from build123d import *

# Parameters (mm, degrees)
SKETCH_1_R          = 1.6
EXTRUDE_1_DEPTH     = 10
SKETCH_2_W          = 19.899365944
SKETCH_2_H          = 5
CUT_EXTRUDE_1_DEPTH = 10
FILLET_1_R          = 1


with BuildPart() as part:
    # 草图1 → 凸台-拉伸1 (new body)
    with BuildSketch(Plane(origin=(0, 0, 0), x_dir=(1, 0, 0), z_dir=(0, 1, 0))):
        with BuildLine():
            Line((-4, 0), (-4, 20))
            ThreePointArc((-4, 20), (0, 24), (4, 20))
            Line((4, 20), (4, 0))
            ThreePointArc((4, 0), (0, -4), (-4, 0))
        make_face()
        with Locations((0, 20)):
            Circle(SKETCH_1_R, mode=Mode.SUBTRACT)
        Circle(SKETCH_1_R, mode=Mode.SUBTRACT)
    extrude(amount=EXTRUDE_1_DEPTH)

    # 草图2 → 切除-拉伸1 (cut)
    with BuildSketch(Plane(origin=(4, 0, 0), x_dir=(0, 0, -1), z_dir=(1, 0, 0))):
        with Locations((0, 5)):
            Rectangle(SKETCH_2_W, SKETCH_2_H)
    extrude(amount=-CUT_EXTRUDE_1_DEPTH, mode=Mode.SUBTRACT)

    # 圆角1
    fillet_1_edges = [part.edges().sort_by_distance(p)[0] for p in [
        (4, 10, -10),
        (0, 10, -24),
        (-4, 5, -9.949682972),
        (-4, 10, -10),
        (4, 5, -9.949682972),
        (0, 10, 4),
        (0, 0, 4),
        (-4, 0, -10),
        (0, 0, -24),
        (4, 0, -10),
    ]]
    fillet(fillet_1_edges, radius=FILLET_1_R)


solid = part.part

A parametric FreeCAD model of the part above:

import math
import FreeCAD as App
import Part
import Sketcher


def edges_at(feature, points):
    """Names of the edges that pass closest to the given points."""
    edges = feature.Shape.Edges
    near = lambda p: min(range(len(edges)), key=lambda i: edges[i].distToShape(Part.Vertex(*p))[0])
    return sorted({f"Edge{near(p) + 1}" for p in points})


def add_polygon(sketch, points):
    """Adds a closed chain of lines whose ends are joined by coincident constraints."""
    first, n = sketch.GeometryCount, len(points)
    for a, b in zip(points, points[1:] + points[:1]):
        sketch.addGeometry(Part.LineSegment(App.Vector(*a, 0), App.Vector(*b, 0)), False)
    for i in range(n):
        sketch.addConstraint(Sketcher.Constraint("Coincident", first + i, 2, first + (i + 1) % n, 1))

doc = App.newDocument("Part")
params = doc.addObject("Spreadsheet::Sheet", "Params")
for row, (alias, value) in enumerate([
    ("sketch1_radius", "4 mm"),
    ("sketch1_diameter", "3.2 mm"),
    ("sketch1_height", "20 mm"),
    ("pad1_length", "10 mm"),
    ("sketch2_width", "5 mm"),
    ("pocket1_length", "10 mm"),
    ("fillet_radius", "1 mm"),
], start=1):
    params.set(f"A{row}", alias)
    params.set(f"B{row}", "=" + value)
    params.setAlias(f"B{row}", alias)

body = doc.addObject("PartDesign::Body", "Body")

# Sketch on XZ plane
sketch1 = body.newObject("Sketcher::SketchObject", "Sketch")
sketch1.AttachmentSupport = (doc.getObject("XZ_Plane"), [""])
sketch1.MapMode = "FlatFace"
sketch1.addGeometry([
    Part.LineSegment(App.Vector(-4, -20, 0), App.Vector(-4, 0, 0)),  # 0
    Part.ArcOfCircle(Part.Circle(App.Vector(0, 0, 0), App.Vector(0, 0, 1), 4), math.radians(0), math.radians(180)),  # 1
    Part.LineSegment(App.Vector(4, 0, 0), App.Vector(4, -20, 0)),  # 2
    Part.ArcOfCircle(Part.Circle(App.Vector(0, -20, 0), App.Vector(0, 0, 1), 4), math.radians(180), math.radians(360)),  # 3
    Part.Circle(App.Vector(0, 0, 0), App.Vector(0, 0, 1), 1.6),  # 4
    Part.Circle(App.Vector(0, -20, 0), App.Vector(0, 0, 1), 1.6),  # 5
], False)
sketch1.addConstraint([
    Sketcher.Constraint("Tangent", 0, 2, 1, 2),
    Sketcher.Constraint("Tangent", 1, 1, 2, 1),
    Sketcher.Constraint("Tangent", 2, 2, 3, 2),
    Sketcher.Constraint("Tangent", 3, 1, 0, 1),
    Sketcher.Constraint("Vertical", 0),
    Sketcher.Constraint("Vertical", 2),
    Sketcher.Constraint("Coincident", 1, 3, -1, 1),
    Sketcher.Constraint("Coincident", 4, 3, -1, 1),
    Sketcher.Constraint("Coincident", 5, 3, 3, 3),
    Sketcher.Constraint("Equal", 4, 5),
    Sketcher.Constraint("Radius", 1, 4.0),
    Sketcher.Constraint("Diameter", 4, 3.2),
    Sketcher.Constraint("DistanceY", 0, 1, 0, 2, 20.0),
])
sketch1.setExpression("Constraints[10]", "Params.sketch1_radius")
sketch1.setExpression("Constraints[11]", "Params.sketch1_diameter")
sketch1.setExpression("Constraints[12]", "Params.sketch1_height")
pad1 = body.newObject("PartDesign::Pad", "Pad")
pad1.Profile = sketch1
pad1.setExpression("Length", "Params.pad1_length")
pad1.Reversed = True

# Sketch on YZ plane
sketch2 = body.newObject("Sketcher::SketchObject", "Sketch001")
sketch2.AttachmentSupport = (doc.getObject("YZ_Plane"), [""])
sketch2.MapMode = "FlatFace"
sketch2.AttachmentOffset = App.Placement(App.Vector(0, 0, 4), App.Rotation())
add_polygon(sketch2, [(8, 10), (2, 10), (2, -10), (8, -10)])  # lines 0-3
sketch2.addConstraint([
    Sketcher.Constraint("Horizontal", 0),
    Sketcher.Constraint("Vertical", 1),
    Sketcher.Constraint("Horizontal", 2),
    Sketcher.Constraint("Vertical", 3),
    Sketcher.Constraint("DistanceX", 0, 2, 0, 1, 5.0),
    Sketcher.Constraint("DistanceX", -1, 1, 0, 2, 2.5),
    Sketcher.Constraint("DistanceY", 1, 2, 1, 1, 19.899366),
    Sketcher.Constraint("DistanceY", -1, 1, 0, 2, 9.949683),
])
sketch2.setExpression("Constraints[8]", "Params.sketch2_width")
pocket1 = body.newObject("PartDesign::Pocket", "Pocket")
pocket1.Profile = sketch2
pocket1.setExpression("Length", "Params.pocket1_length")
doc.recompute()

fillet = body.newObject("PartDesign::Fillet", "Fillet")
fillet.Base = (pocket1, edges_at(pocket1, [
    (4, 10, -10),
    (0, 10, -24),
    (-4, 5, -9.95),
    (-4, 10, -10),
    (4, 5, -9.95),
    (0, 10, 4),
    (0, 0, 4),
    (-4, 0, -10),
    (0, 0, -24),
    (4, 0, -10),
]))
fillet.setExpression("Radius", "Params.fillet_radius")

doc.recompute()
